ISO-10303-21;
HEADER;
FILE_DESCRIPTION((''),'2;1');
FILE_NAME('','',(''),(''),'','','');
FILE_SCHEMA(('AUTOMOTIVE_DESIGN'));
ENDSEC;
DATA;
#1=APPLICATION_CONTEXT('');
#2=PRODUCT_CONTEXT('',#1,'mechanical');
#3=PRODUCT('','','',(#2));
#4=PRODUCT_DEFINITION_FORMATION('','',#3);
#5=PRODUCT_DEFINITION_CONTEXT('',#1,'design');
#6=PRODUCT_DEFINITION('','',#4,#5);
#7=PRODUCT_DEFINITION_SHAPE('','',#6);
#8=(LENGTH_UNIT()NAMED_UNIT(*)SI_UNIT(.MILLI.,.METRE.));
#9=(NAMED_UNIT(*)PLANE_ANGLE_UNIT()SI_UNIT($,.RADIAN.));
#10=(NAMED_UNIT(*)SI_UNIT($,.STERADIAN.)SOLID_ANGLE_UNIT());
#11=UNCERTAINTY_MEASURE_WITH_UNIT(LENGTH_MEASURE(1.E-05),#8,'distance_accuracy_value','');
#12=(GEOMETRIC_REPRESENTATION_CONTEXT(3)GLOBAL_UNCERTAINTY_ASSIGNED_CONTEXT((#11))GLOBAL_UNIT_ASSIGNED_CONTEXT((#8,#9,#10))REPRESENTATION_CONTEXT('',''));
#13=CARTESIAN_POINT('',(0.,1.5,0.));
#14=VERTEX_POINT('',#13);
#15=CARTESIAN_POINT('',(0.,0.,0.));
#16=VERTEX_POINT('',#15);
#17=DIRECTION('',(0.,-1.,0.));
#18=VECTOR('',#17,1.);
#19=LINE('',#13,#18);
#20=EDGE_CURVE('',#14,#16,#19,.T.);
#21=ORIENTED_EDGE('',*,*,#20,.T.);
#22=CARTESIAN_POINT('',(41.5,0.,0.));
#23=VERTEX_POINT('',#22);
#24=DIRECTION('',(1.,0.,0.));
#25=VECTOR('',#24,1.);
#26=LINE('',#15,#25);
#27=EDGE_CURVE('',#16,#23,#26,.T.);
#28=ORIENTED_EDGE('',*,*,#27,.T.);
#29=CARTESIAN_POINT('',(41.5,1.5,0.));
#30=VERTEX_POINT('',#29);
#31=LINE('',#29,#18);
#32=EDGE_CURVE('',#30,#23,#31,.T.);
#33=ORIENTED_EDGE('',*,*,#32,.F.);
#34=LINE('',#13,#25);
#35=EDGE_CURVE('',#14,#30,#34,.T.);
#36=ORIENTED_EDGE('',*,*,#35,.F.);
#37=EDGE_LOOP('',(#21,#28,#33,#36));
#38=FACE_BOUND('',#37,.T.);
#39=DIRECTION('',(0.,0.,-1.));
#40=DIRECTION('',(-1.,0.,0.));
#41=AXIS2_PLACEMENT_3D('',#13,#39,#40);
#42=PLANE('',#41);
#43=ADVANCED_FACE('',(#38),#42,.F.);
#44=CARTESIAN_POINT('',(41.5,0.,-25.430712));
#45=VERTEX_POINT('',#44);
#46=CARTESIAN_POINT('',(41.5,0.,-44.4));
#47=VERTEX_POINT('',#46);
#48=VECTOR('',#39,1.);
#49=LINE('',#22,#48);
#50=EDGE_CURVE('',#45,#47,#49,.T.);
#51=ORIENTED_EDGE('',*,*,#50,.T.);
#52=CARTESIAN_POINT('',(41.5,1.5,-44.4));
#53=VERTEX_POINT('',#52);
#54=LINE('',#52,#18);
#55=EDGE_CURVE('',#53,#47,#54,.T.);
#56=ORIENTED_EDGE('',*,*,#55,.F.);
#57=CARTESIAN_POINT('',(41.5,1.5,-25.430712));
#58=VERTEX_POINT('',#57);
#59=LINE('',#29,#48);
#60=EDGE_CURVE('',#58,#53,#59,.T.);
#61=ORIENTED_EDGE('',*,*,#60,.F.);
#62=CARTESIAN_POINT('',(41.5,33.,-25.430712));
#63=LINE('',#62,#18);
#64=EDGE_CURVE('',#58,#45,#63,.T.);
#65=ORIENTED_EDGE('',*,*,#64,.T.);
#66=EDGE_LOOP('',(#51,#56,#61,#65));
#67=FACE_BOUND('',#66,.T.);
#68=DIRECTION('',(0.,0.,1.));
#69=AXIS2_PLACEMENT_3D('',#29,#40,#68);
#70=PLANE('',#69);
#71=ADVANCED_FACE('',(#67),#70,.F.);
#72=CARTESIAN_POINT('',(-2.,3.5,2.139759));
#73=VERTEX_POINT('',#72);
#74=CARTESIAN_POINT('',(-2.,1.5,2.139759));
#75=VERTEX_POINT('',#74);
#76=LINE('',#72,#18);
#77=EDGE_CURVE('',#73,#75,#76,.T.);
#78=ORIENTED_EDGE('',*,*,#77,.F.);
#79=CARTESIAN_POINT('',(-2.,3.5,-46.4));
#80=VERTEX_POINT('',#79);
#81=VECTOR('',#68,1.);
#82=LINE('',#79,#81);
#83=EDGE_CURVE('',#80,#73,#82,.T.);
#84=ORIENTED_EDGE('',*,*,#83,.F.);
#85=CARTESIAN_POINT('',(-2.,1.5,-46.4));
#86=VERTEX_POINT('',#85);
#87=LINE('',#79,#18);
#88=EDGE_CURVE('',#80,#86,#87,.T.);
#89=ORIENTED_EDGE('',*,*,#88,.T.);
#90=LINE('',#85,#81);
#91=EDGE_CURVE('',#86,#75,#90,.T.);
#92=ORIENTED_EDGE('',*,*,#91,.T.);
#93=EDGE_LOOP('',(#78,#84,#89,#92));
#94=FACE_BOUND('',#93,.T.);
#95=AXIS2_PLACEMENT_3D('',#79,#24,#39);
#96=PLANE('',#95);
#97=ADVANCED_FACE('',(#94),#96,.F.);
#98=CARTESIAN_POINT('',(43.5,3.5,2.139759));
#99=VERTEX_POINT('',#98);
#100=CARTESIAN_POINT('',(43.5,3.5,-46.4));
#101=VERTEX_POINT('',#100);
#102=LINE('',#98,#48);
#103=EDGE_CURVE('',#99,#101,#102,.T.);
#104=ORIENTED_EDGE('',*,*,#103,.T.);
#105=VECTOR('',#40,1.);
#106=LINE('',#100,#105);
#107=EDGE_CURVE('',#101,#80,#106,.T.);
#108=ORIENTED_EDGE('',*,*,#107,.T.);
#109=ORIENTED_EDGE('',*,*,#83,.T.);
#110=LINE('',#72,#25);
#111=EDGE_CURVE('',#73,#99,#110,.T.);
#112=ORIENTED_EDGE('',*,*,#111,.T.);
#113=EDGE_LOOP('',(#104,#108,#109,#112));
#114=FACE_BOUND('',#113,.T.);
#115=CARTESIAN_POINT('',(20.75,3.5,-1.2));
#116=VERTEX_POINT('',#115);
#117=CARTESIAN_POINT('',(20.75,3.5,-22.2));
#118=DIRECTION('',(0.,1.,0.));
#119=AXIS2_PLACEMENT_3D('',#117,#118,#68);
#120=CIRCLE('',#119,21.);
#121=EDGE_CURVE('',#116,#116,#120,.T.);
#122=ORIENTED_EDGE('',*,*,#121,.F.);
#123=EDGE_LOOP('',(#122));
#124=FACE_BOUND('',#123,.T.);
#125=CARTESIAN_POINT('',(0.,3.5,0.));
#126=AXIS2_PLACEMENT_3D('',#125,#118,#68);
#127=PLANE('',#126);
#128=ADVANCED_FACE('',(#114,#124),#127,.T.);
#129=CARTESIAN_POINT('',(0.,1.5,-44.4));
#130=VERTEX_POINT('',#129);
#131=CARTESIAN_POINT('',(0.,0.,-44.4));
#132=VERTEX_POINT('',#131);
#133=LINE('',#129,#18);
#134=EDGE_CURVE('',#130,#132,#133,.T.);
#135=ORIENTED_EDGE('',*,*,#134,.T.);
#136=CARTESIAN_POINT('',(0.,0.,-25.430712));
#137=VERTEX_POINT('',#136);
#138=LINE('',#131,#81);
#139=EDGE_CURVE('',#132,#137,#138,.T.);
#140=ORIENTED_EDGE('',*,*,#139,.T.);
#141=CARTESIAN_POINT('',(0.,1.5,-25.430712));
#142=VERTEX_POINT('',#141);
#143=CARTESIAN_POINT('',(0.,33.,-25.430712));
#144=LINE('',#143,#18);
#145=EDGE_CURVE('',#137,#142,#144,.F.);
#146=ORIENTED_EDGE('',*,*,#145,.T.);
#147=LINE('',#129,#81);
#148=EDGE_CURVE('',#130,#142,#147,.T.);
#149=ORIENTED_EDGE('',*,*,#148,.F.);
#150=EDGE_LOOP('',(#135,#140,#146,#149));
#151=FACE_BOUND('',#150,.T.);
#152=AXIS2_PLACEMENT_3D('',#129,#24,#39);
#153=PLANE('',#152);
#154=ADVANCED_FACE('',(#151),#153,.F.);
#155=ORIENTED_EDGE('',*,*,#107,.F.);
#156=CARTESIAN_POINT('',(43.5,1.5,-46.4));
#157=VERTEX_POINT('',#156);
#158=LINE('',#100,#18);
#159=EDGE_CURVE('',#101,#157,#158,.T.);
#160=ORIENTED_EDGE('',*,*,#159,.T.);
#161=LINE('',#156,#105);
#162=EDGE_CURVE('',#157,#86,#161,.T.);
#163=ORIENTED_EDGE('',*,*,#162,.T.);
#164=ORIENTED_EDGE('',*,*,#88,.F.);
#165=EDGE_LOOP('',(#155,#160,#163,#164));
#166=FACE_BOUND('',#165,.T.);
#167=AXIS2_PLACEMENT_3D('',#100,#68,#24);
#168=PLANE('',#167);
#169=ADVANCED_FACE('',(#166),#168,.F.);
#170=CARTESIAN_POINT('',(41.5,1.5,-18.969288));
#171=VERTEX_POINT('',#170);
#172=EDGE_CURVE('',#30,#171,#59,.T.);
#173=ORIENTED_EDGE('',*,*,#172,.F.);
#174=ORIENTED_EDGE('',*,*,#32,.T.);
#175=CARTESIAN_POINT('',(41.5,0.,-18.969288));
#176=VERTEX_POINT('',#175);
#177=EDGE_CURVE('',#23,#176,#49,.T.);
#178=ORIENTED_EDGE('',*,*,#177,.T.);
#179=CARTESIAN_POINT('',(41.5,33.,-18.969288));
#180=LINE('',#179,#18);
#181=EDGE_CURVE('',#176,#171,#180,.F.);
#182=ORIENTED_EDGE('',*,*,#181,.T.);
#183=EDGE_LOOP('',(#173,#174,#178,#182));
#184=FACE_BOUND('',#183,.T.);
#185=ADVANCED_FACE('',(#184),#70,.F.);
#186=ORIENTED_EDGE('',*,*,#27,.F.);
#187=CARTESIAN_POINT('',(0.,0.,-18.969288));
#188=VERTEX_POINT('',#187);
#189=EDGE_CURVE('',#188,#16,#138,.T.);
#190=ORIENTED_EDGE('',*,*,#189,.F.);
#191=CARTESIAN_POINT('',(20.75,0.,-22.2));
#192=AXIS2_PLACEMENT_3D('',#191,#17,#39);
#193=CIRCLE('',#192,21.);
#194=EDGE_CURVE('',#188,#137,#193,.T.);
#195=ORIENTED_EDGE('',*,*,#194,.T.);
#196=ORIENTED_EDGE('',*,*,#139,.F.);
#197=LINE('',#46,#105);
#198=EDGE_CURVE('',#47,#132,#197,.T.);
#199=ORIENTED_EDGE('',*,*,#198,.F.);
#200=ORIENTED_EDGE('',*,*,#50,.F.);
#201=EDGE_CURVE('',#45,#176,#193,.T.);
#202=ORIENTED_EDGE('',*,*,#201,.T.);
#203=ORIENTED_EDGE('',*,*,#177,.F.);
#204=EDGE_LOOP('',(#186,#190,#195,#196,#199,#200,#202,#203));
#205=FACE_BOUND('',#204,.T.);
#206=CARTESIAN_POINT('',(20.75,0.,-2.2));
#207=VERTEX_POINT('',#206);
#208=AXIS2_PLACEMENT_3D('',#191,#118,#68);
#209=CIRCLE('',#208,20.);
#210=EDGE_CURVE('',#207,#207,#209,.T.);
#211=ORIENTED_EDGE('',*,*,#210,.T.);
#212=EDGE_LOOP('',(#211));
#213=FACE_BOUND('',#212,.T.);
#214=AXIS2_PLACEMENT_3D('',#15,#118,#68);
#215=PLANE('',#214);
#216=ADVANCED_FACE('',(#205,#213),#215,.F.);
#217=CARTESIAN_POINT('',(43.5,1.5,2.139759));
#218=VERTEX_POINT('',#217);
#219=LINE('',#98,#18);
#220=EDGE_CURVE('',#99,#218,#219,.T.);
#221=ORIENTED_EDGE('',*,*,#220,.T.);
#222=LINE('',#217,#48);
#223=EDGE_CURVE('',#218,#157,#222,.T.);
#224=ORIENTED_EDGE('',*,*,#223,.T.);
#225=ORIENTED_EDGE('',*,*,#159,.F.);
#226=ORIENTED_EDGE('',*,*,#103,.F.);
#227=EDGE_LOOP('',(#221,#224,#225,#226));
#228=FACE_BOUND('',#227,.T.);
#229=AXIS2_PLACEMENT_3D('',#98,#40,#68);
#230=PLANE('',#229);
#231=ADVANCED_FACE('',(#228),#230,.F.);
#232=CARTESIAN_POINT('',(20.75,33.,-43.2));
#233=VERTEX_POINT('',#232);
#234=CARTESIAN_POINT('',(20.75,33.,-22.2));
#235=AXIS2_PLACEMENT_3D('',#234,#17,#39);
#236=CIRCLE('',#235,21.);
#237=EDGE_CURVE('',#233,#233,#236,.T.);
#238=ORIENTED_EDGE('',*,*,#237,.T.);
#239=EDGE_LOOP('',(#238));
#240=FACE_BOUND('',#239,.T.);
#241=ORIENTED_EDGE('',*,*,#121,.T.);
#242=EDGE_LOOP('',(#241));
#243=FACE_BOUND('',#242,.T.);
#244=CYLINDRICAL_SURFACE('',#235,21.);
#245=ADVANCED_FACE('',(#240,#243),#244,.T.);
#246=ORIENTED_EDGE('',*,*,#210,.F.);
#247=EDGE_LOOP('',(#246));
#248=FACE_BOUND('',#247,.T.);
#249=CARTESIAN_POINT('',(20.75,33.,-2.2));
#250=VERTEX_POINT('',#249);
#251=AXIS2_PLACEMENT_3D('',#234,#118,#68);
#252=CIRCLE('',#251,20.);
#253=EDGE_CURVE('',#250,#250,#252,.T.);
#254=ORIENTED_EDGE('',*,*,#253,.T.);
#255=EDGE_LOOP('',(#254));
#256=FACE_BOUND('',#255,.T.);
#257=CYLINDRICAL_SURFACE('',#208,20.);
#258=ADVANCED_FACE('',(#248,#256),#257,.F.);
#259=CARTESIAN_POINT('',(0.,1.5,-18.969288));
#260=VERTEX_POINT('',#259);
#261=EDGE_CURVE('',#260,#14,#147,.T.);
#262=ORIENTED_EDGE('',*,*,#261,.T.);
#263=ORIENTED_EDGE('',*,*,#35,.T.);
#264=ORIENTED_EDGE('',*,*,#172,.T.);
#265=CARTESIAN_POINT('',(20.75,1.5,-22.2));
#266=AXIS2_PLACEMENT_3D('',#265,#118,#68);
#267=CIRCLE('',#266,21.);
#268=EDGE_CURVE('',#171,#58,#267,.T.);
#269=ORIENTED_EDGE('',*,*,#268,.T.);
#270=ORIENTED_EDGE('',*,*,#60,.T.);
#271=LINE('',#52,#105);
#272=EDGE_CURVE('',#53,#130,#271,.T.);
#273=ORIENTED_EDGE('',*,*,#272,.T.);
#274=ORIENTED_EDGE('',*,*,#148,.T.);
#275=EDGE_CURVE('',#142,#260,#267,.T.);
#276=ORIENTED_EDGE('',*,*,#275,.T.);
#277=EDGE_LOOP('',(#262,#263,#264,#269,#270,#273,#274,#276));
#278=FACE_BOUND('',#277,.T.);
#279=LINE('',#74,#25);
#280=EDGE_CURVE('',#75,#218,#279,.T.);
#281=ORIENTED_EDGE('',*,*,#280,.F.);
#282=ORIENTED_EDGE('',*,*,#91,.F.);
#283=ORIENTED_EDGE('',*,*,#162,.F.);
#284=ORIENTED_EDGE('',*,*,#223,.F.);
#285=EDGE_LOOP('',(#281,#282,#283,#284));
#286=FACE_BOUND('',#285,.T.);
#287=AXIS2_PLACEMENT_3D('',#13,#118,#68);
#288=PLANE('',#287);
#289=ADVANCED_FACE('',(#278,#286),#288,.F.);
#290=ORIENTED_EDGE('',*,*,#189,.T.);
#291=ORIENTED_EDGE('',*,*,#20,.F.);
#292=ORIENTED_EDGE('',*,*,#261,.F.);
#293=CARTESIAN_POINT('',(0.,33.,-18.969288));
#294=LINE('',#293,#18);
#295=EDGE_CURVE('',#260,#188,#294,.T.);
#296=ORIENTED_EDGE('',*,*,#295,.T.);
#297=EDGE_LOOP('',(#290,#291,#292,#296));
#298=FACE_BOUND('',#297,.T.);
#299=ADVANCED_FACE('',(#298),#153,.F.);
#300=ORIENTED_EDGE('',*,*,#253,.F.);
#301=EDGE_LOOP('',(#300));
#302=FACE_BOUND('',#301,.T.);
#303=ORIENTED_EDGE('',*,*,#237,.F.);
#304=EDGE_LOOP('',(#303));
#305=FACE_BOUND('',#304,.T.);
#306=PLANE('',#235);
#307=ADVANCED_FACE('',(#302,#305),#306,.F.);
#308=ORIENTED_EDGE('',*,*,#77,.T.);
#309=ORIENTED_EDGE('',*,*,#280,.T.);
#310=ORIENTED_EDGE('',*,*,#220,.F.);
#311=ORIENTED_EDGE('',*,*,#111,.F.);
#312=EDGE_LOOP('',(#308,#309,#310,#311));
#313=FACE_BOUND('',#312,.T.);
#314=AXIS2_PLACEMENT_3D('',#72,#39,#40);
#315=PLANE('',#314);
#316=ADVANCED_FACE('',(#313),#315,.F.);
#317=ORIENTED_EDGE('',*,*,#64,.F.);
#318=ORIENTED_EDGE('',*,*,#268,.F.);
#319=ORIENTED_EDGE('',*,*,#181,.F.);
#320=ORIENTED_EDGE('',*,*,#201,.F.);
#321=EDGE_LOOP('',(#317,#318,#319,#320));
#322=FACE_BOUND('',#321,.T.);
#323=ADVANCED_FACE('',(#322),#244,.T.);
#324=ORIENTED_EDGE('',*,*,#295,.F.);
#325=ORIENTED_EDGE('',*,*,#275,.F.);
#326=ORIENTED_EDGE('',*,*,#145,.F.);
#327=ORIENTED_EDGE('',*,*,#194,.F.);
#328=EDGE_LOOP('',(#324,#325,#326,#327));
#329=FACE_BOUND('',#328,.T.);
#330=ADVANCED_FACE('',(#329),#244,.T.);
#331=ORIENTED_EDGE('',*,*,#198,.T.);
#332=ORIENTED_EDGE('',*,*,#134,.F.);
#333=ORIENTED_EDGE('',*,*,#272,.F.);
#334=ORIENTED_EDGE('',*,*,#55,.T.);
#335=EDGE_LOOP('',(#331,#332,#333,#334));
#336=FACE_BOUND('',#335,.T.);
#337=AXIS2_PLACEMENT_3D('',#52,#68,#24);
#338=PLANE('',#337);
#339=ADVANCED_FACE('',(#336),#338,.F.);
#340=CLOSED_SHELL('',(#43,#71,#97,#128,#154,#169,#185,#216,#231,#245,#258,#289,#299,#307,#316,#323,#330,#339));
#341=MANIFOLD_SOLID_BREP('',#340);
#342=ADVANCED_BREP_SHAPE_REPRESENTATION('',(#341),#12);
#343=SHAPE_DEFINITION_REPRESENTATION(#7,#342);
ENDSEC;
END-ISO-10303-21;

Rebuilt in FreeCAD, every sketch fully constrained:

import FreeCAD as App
import Part
import Sketcher


def add_polygon(sketch, points):
    """Adds a closed chain of lines whose ends are joined by coincident constraints."""
    first, n = sketch.GeometryCount, len(points)
    for a, b in zip(points, points[1:] + points[:1]):
        sketch.addGeometry(Part.LineSegment(App.Vector(*a, 0), App.Vector(*b, 0)), False)
    for i in range(n):
        sketch.addConstraint(Sketcher.Constraint("Coincident", first + i, 2, first + (i + 1) % n, 1))

doc = App.newDocument("Part")
params = doc.addObject("Spreadsheet::Sheet", "Params")
for row, (alias, value) in enumerate([
    ("sketch1_width", "41.5 mm"),
    ("sketch1_height", "44.4 mm"),
    ("pad1_length", "1.5 mm"),
    ("sketch2_width", "45.5 mm"),
    ("pad2_length", "2 mm"),
    ("sketch3_diameter", "42 mm"),
    ("pad3_length", "33 mm"),
    ("sketch4_diameter", "40 mm"),
], start=1):
    params.set(f"A{row}", alias)
    params.set(f"B{row}", "=" + value)
    params.setAlias(f"B{row}", alias)

body = doc.addObject("PartDesign::Body", "Body")

sketch1 = doc.addObject("Sketcher::SketchObject", "Sketch")
body.addObject(sketch1)
sketch1.AttachmentSupport = (doc.XZ_Plane, [""])
sketch1.MapMode = "FlatFace"
add_polygon(sketch1, [(0, -44), (0, 0), (42, 0), (42, -44)])
sketch1.addConstraint([
    Sketcher.Constraint("Vertical", 0),
    Sketcher.Constraint("Horizontal", 1),
    Sketcher.Constraint("Vertical", 2),
    Sketcher.Constraint("Horizontal", 3),
    Sketcher.Constraint("Coincident", 0, 2, -1, 1),
    Sketcher.Constraint("DistanceX", 1, 1, 1, 2, 41.5),
    Sketcher.Constraint("DistanceY", 0, 1, 0, 2, 44.4),
])
sketch1.setExpression("Constraints[9]", "Params.sketch1_width")
sketch1.setExpression("Constraints[10]", "Params.sketch1_height")
pad1 = doc.addObject("PartDesign::Pad", "Pad")
body.addObject(pad1)
pad1.Profile = sketch1
pad1.setExpression("Length", "Params.pad1_length")
pad1.Reversed = True

sketch2 = doc.addObject("Sketcher::SketchObject", "Sketch001")
body.addObject(sketch2)
sketch2.AttachmentSupport = (doc.XZ_Plane, [""])
sketch2.MapMode = "FlatFace"
sketch2.AttachmentOffset = App.Placement(App.Vector(0, 0, -1.5), App.Rotation())
add_polygon(sketch2, [(-2, -46), (-2, 2), (44, 2), (44, -46)])
sketch2.addConstraint([
    Sketcher.Constraint("Vertical", 0),
    Sketcher.Constraint("Horizontal", 1),
    Sketcher.Constraint("Vertical", 2),
    Sketcher.Constraint("Horizontal", 3),
    Sketcher.Constraint("DistanceX", 1, 1, 1, 2, 45.5),
    Sketcher.Constraint("DistanceX", 0, 2, -1, 1, 2.0),
    Sketcher.Constraint("DistanceY", 2, 2, -1, 1, 46.4),
    Sketcher.Constraint("DistanceY", 0, 1, 0, 2, 48.539759),
])
sketch2.setExpression("Constraints[8]", "Params.sketch2_width")
pad2 = doc.addObject("PartDesign::Pad", "Pad001")
body.addObject(pad2)
pad2.Profile = sketch2
pad2.setExpression("Length", "Params.pad2_length")
pad2.Reversed = True

sketch3 = doc.addObject("Sketcher::SketchObject", "Sketch002")
body.addObject(sketch3)
sketch3.AttachmentSupport = (doc.XZ_Plane, [""])
sketch3.MapMode = "FlatFace"
sketch3.addGeometry(Part.Circle(App.Vector(21, -22, 0), App.Vector(0, 0, 1), 21), False)
sketch3.addConstraint([
    Sketcher.Constraint("Diameter", 0, 42.0),
    Sketcher.Constraint("DistanceY", 0, 3, -1, 1, 22.2),
    Sketcher.Constraint("DistanceX", -1, 1, 0, 3, 20.75),
])
sketch3.setExpression("Constraints[0]", "Params.sketch3_diameter")
pad3 = doc.addObject("PartDesign::Pad", "Pad002")
body.addObject(pad3)
pad3.Profile = sketch3
pad3.setExpression("Length", "Params.pad3_length")
pad3.Reversed = True

sketch4 = doc.addObject("Sketcher::SketchObject", "Sketch003")
body.addObject(sketch4)
sketch4.AttachmentSupport = (doc.XZ_Plane, [""])
sketch4.MapMode = "FlatFace"
sketch4.AttachmentOffset = App.Placement(App.Vector(0, 0, -33), App.Rotation())
sketch4.addGeometry(Part.Circle(App.Vector(21, -22, 0), App.Vector(0, 0, 1), 20), False)
sketch4.addConstraint([
    Sketcher.Constraint("Diameter", 0, 40.0),
    Sketcher.Constraint("DistanceY", 0, 3, -1, 1, 22.2),
    Sketcher.Constraint("DistanceX", -1, 1, 0, 3, 20.75),
])
sketch4.setExpression("Constraints[0]", "Params.sketch4_diameter")
pocket1 = doc.addObject("PartDesign::Pocket", "Pocket")
body.addObject(pocket1)
pocket1.Profile = sketch4
pocket1.Type = "ThroughAll"
pocket1.Reversed = True

doc.recompute()
